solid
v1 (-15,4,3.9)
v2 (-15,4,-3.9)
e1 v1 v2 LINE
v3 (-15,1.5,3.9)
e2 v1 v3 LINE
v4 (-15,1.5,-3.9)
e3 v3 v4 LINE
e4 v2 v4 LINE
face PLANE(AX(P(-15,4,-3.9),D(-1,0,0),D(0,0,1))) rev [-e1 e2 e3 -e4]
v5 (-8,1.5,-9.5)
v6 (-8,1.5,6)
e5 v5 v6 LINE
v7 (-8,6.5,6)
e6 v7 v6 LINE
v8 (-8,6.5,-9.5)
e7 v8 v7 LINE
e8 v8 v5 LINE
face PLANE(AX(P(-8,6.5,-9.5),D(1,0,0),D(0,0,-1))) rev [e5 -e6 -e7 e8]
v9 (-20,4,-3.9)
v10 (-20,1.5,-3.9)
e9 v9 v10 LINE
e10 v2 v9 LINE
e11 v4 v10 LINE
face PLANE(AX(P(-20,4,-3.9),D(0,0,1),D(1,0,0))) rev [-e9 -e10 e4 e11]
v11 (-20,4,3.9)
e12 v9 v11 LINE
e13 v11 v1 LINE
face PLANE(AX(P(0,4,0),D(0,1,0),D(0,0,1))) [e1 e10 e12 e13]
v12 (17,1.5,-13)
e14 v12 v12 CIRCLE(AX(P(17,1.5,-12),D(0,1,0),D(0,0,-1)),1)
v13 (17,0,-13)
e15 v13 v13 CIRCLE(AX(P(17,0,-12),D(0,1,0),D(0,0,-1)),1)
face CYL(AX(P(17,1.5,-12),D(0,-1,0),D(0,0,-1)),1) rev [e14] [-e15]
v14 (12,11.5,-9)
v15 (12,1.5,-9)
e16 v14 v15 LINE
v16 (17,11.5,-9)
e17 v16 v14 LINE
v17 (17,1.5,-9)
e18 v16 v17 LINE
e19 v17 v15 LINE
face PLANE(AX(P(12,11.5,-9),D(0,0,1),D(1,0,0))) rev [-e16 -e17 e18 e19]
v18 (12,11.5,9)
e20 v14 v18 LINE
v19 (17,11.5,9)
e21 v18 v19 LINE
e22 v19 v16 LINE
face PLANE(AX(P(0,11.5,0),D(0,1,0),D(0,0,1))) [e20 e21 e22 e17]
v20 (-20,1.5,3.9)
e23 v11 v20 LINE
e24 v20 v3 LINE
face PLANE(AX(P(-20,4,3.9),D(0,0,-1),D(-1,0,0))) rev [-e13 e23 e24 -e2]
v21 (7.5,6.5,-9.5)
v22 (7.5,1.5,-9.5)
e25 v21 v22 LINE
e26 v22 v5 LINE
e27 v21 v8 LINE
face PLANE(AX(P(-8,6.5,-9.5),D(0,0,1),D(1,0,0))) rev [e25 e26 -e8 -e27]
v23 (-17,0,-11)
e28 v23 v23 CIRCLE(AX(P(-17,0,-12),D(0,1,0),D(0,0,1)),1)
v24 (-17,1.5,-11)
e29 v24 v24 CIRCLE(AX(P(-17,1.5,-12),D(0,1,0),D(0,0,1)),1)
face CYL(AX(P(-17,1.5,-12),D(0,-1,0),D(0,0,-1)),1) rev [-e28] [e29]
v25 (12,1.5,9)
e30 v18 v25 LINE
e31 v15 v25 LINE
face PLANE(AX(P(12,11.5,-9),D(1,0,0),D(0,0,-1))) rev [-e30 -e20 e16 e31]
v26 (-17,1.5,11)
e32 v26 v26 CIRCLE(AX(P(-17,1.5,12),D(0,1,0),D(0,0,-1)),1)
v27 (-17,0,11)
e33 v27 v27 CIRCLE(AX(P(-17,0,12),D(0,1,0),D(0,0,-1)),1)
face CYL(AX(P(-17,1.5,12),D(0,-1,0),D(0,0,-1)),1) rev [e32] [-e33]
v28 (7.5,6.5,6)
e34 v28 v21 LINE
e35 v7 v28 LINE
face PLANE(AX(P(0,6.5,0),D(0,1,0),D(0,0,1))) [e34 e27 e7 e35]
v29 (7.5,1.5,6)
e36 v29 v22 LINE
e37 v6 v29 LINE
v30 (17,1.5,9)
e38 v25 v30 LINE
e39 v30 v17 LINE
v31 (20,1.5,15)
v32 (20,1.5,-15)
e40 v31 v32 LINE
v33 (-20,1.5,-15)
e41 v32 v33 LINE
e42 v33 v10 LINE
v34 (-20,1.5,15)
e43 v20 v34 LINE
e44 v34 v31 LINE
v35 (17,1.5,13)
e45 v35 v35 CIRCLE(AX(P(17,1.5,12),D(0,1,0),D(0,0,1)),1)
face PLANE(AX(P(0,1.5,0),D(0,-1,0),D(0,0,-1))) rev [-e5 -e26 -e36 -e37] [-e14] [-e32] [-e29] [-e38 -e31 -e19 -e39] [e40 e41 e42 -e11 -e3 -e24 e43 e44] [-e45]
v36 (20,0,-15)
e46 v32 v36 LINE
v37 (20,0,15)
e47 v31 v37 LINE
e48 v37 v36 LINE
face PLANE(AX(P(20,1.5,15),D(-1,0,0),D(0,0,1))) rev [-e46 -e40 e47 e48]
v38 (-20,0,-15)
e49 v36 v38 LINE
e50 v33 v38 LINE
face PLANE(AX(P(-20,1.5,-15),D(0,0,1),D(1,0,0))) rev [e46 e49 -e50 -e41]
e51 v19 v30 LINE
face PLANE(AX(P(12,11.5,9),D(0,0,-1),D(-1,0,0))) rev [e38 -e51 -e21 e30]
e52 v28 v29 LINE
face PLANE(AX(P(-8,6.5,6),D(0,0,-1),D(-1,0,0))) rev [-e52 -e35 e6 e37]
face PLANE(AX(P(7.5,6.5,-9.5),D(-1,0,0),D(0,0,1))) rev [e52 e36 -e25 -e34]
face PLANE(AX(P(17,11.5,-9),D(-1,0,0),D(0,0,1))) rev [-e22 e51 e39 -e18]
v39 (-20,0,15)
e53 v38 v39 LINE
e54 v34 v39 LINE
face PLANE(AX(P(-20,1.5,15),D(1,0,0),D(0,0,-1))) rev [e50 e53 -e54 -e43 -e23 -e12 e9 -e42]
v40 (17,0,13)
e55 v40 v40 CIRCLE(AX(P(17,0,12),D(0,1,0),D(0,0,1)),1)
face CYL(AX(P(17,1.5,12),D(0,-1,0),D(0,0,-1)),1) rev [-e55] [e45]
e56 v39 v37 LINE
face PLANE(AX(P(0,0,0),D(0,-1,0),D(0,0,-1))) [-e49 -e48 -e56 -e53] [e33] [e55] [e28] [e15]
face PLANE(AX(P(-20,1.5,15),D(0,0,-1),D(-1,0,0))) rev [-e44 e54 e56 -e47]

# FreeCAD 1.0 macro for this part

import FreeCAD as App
import Part
import Sketcher

V = App.Vector
Q = App.Units.Quantity


def add_polygon(sketch, points):
    """Adds a closed chain of lines whose ends are joined by coincident constraints."""
    first, n = sketch.GeometryCount, len(points)
    for a, b in zip(points, points[1:] + points[:1]):
        sketch.addGeometry(Part.LineSegment(App.Vector(*a, 0), App.Vector(*b, 0)), False)
    for i in range(n):
        sketch.addConstraint(Sketcher.Constraint("Coincident", first + i, 2, first + (i + 1) % n, 1))

doc = App.newDocument("Part")
body = doc.addObject("PartDesign::Body", "Body")

# Sketch on XZ plane
sketch1 = body.newObject("Sketcher::SketchObject", "Sketch")
sketch1.AttachmentSupport = (doc.getObject("XZ_Plane"), [""])
sketch1.MapMode = "FlatFace"
add_polygon(sketch1, [(-20, -15), (-20, 15), (20, 15), (20, -15)])  # lines 0-3
sketch1.addGeometry(Part.Circle(V(-17, 12, 0), V(0, 0, 1), 1), False)  # 4
sketch1.addGeometry(Part.Circle(V(17, 12, 0), V(0, 0, 1), 1), False)  # 5
sketch1.addGeometry(Part.Circle(V(-17, -12, 0), V(0, 0, 1), 1), False)  # 6
sketch1.addGeometry(Part.Circle(V(17, -12, 0), V(0, 0, 1), 1), False)  # 7
sketch1.addConstraint([
    Sketcher.Constraint("Vertical", 0),
    Sketcher.Constraint("Horizontal", 1),
    Sketcher.Constraint("Vertical", 2),
    Sketcher.Constraint("Horizontal", 3),
    Sketcher.Constraint("Equal", 4, 5),
    Sketcher.Constraint("Equal", 5, 6),
    Sketcher.Constraint("Equal", 6, 7),
    Sketcher.Constraint("Symmetric", 5, 3, 6, 3, -1, 1),
    Sketcher.Constraint("Symmetric", 4, 3, 7, 3, -1, 1),
    Sketcher.Constraint("Symmetric", 0, 2, 2, 2, -1, 1),
    Sketcher.Constraint("Symmetric", 4, 3, 5, 3, -2),
    Sketcher.Constraint("Diameter", 4, Q("2 mm")),
    Sketcher.Constraint("DistanceX", 1, 1, 1, 2, Q("40 mm")),
    Sketcher.Constraint("DistanceY", 0, 1, 0, 2, Q("30 mm")),
    Sketcher.Constraint("DistanceX", 4, 3, -1, 1, Q("17 mm")),
    Sketcher.Constraint("DistanceY", -1, 1, 4, 3, Q("12 mm")),
])
pad1 = body.newObject("PartDesign::Pad", "Pad")
pad1.Profile = sketch1
pad1.Length = 1.5
pad1.Reversed = True

# Sketch on XZ plane
sketch2 = body.newObject("Sketcher::SketchObject", "Sketch001")
sketch2.AttachmentSupport = (doc.getObject("XZ_Plane"), [""])
sketch2.MapMode = "FlatFace"
sketch2.AttachmentOffset = App.Placement(V(0, 0, -1.5), App.Rotation())
add_polygon(sketch2, [(-20, -4), (-20, 4), (-15, 4), (-15, -4)])  # lines 0-3
sketch2.addConstraint([
    Sketcher.Constraint("Vertical", 0),
    Sketcher.Constraint("Horizontal", 1),
    Sketcher.Constraint("Vertical", 2),
    Sketcher.Constraint("Horizontal", 3),
    Sketcher.Constraint("DistanceX", 1, 1, 1, 2, Q("5 mm")),
    Sketcher.Constraint("DistanceY", 0, 1, 0, 2, Q("7.8 mm")),
    Sketcher.Constraint("DistanceX", 0, 2, -1, 1, Q("20 mm")),
    Sketcher.Constraint("DistanceY", -1, 1, 0, 2, Q("3.9 mm")),
])
pad2 = body.newObject("PartDesign::Pad", "Pad001")
pad2.Profile = sketch2
pad2.Length = 2.5
pad2.Reversed = True

# Sketch on XZ plane
sketch3 = body.newObject("Sketcher::SketchObject", "Sketch002")
sketch3.AttachmentSupport = (doc.getObject("XZ_Plane"), [""])
sketch3.MapMode = "FlatFace"
sketch3.AttachmentOffset = App.Placement(V(0, 0, -1.5), App.Rotation())
add_polygon(sketch3, [(-8, -10), (-8, 6), (8, 6), (8, -10)])  # lines 0-3
sketch3.addConstraint([
    Sketcher.Constraint("Vertical", 0),
    Sketcher.Constraint("Horizontal", 1),
    Sketcher.Constraint("Vertical", 2),
    Sketcher.Constraint("Horizontal", 3),
    Sketcher.Constraint("Equal", 3, 0),
    Sketcher.Constraint("DistanceX", 1, 1, 1, 2, Q("15.5 mm")),
    Sketcher.Constraint("DistanceX", 0, 2, -1, 1, Q("8 mm")),
    Sketcher.Constraint("DistanceY", -1, 1, 0, 2, Q("6 mm")),
])
pad3 = body.newObject("PartDesign::Pad", "Pad002")
pad3.Profile = sketch3
pad3.Length = 5
pad3.Reversed = True

# Sketch on XZ plane
sketch4 = body.newObject("Sketcher::SketchObject", "Sketch003")
sketch4.AttachmentSupport = (doc.getObject("XZ_Plane"), [""])
sketch4.MapMode = "FlatFace"
sketch4.AttachmentOffset = App.Placement(V(0, 0, -1.5), App.Rotation())
add_polygon(sketch4, [(12, -9), (12, 9), (17, 9), (17, -9)])  # lines 0-3
sketch4.addConstraint([
    Sketcher.Constraint("Vertical", 0),
    Sketcher.Constraint("Horizontal", 1),
    Sketcher.Constraint("Vertical", 2),
    Sketcher.Constraint("Horizontal", 3),
    Sketcher.Constraint("DistanceX", 1, 1, 1, 2, Q("5 mm")),
    Sketcher.Constraint("DistanceY", 0, 1, 0, 2, Q("18 mm")),
    Sketcher.Constraint("DistanceX", -1, 1, 0, 2, Q("12 mm")),
    Sketcher.Constraint("DistanceY", -1, 1, 0, 2, Q("9 mm")),
])
pad4 = body.newObject("PartDesign::Pad", "Pad003")
pad4.Profile = sketch4
pad4.Length = 10
pad4.Reversed = True

doc.recompute()
